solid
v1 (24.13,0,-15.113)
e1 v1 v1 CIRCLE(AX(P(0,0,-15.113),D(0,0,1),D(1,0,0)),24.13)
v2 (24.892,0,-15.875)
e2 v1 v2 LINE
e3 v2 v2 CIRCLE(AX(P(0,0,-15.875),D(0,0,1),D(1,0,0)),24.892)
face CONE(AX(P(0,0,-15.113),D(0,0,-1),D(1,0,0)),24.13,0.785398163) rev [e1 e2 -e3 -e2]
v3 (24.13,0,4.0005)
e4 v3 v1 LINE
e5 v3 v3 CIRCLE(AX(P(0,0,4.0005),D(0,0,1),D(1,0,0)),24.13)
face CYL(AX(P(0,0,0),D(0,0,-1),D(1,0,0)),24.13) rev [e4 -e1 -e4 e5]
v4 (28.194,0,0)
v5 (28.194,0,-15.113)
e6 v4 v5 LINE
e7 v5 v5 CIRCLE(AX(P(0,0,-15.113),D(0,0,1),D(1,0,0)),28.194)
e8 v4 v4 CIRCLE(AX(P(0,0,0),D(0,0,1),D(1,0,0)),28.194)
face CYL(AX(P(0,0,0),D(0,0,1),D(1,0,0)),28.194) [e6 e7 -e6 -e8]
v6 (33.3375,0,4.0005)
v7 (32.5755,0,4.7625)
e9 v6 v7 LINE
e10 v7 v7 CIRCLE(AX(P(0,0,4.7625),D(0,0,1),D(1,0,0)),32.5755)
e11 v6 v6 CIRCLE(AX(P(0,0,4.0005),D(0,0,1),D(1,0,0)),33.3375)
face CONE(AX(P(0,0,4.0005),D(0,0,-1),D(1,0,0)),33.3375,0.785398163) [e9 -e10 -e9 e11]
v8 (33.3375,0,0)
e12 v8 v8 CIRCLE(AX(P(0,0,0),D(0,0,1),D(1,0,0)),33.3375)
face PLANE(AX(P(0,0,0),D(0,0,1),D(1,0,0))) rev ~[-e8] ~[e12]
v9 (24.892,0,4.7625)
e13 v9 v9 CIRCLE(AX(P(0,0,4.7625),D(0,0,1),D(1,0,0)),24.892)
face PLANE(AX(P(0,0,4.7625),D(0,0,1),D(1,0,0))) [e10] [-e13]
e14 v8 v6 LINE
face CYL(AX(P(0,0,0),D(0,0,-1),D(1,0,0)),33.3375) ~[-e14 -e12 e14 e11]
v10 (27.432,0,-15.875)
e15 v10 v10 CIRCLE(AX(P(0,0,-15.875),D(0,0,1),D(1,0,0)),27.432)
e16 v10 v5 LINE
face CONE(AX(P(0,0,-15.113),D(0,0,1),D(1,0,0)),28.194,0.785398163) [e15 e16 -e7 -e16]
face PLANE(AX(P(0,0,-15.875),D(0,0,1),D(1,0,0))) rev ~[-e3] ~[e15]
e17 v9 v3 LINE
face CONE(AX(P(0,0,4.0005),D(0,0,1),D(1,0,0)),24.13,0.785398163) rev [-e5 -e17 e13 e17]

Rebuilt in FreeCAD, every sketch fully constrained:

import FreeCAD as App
import Part
import Sketcher

V = App.Vector
Q = App.Units.Quantity


def edges_at(feature, points):
    """Names of the edges that pass closest to the given points."""
    edges = feature.Shape.Edges
    near = lambda p: min(range(len(edges)), key=lambda i: edges[i].distToShape(Part.Vertex(*p))[0])
    return sorted({f"Edge{near(p) + 1}" for p in points})

doc = App.newDocument("Part")
body = doc.addObject("PartDesign::Body", "Body")

sketch1 = doc.addObject("Sketcher::SketchObject", "Sketch")
body.addObject(sketch1)
sketch1.AttachmentSupport = (doc.XY_Plane, [""])
sketch1.MapMode = "FlatFace"
sketch1.addGeometry([
    Part.Circle(V(0, 0, 0), V(0, 0, 1), 28.194),
    Part.Circle(V(0, 0, 0), V(0, 0, 1), 24.13),
], False)
sketch1.addConstraint([
    Sketcher.Constraint("Coincident", 0, 3, -1, 1),
    Sketcher.Constraint("Coincident", 1, 3, -1, 1),
    Sketcher.Constraint("Diameter", 1, Q("1.9 in")),
    Sketcher.Constraint("Diameter", 0, Q("2.22 in")),
])
pad1 = doc.addObject("PartDesign::Pad", "Pad")
body.addObject(pad1)
pad1.Profile = sketch1
pad1.Length = Q("0.625 in")
pad1.Reversed = True

sketch2 = doc.addObject("Sketcher::SketchObject", "Sketch001")
body.addObject(sketch2)
sketch2.AttachmentSupport = (doc.XY_Plane, [""])
sketch2.MapMode = "FlatFace"
sketch2.addGeometry([
    Part.Circle(V(0, 0, 0), V(0, 0, 1), 33.3375),
    Part.Circle(V(0, 0, 0), V(0, 0, 1), 24.13),
], False)
sketch2.addConstraint([
    Sketcher.Constraint("Coincident", 0, 3, -1, 1),
    Sketcher.Constraint("Coincident", 1, 3, -1, 1),
    Sketcher.Constraint("Diameter", 1, Q("1.9 in")),
    Sketcher.Constraint("Diameter", 0, Q("2.625 in")),
])
pad2 = doc.addObject("PartDesign::Pad", "Pad001")
body.addObject(pad2)
pad2.Profile = sketch2
pad2.Length = Q("0.1875 in")
doc.recompute()

chamfer = doc.addObject("PartDesign::Chamfer", "Chamfer")
body.addObject(chamfer)
chamfer.Base = (pad2, edges_at(pad2, [
    (-33.337, 0, 4.763),
    (-24.13, 0, 4.763),
    (-28.194, 0, -15.875),
    (-24.13, 0, -15.875),
]))
chamfer.Size = Q("0.03 in")

doc.recompute()
